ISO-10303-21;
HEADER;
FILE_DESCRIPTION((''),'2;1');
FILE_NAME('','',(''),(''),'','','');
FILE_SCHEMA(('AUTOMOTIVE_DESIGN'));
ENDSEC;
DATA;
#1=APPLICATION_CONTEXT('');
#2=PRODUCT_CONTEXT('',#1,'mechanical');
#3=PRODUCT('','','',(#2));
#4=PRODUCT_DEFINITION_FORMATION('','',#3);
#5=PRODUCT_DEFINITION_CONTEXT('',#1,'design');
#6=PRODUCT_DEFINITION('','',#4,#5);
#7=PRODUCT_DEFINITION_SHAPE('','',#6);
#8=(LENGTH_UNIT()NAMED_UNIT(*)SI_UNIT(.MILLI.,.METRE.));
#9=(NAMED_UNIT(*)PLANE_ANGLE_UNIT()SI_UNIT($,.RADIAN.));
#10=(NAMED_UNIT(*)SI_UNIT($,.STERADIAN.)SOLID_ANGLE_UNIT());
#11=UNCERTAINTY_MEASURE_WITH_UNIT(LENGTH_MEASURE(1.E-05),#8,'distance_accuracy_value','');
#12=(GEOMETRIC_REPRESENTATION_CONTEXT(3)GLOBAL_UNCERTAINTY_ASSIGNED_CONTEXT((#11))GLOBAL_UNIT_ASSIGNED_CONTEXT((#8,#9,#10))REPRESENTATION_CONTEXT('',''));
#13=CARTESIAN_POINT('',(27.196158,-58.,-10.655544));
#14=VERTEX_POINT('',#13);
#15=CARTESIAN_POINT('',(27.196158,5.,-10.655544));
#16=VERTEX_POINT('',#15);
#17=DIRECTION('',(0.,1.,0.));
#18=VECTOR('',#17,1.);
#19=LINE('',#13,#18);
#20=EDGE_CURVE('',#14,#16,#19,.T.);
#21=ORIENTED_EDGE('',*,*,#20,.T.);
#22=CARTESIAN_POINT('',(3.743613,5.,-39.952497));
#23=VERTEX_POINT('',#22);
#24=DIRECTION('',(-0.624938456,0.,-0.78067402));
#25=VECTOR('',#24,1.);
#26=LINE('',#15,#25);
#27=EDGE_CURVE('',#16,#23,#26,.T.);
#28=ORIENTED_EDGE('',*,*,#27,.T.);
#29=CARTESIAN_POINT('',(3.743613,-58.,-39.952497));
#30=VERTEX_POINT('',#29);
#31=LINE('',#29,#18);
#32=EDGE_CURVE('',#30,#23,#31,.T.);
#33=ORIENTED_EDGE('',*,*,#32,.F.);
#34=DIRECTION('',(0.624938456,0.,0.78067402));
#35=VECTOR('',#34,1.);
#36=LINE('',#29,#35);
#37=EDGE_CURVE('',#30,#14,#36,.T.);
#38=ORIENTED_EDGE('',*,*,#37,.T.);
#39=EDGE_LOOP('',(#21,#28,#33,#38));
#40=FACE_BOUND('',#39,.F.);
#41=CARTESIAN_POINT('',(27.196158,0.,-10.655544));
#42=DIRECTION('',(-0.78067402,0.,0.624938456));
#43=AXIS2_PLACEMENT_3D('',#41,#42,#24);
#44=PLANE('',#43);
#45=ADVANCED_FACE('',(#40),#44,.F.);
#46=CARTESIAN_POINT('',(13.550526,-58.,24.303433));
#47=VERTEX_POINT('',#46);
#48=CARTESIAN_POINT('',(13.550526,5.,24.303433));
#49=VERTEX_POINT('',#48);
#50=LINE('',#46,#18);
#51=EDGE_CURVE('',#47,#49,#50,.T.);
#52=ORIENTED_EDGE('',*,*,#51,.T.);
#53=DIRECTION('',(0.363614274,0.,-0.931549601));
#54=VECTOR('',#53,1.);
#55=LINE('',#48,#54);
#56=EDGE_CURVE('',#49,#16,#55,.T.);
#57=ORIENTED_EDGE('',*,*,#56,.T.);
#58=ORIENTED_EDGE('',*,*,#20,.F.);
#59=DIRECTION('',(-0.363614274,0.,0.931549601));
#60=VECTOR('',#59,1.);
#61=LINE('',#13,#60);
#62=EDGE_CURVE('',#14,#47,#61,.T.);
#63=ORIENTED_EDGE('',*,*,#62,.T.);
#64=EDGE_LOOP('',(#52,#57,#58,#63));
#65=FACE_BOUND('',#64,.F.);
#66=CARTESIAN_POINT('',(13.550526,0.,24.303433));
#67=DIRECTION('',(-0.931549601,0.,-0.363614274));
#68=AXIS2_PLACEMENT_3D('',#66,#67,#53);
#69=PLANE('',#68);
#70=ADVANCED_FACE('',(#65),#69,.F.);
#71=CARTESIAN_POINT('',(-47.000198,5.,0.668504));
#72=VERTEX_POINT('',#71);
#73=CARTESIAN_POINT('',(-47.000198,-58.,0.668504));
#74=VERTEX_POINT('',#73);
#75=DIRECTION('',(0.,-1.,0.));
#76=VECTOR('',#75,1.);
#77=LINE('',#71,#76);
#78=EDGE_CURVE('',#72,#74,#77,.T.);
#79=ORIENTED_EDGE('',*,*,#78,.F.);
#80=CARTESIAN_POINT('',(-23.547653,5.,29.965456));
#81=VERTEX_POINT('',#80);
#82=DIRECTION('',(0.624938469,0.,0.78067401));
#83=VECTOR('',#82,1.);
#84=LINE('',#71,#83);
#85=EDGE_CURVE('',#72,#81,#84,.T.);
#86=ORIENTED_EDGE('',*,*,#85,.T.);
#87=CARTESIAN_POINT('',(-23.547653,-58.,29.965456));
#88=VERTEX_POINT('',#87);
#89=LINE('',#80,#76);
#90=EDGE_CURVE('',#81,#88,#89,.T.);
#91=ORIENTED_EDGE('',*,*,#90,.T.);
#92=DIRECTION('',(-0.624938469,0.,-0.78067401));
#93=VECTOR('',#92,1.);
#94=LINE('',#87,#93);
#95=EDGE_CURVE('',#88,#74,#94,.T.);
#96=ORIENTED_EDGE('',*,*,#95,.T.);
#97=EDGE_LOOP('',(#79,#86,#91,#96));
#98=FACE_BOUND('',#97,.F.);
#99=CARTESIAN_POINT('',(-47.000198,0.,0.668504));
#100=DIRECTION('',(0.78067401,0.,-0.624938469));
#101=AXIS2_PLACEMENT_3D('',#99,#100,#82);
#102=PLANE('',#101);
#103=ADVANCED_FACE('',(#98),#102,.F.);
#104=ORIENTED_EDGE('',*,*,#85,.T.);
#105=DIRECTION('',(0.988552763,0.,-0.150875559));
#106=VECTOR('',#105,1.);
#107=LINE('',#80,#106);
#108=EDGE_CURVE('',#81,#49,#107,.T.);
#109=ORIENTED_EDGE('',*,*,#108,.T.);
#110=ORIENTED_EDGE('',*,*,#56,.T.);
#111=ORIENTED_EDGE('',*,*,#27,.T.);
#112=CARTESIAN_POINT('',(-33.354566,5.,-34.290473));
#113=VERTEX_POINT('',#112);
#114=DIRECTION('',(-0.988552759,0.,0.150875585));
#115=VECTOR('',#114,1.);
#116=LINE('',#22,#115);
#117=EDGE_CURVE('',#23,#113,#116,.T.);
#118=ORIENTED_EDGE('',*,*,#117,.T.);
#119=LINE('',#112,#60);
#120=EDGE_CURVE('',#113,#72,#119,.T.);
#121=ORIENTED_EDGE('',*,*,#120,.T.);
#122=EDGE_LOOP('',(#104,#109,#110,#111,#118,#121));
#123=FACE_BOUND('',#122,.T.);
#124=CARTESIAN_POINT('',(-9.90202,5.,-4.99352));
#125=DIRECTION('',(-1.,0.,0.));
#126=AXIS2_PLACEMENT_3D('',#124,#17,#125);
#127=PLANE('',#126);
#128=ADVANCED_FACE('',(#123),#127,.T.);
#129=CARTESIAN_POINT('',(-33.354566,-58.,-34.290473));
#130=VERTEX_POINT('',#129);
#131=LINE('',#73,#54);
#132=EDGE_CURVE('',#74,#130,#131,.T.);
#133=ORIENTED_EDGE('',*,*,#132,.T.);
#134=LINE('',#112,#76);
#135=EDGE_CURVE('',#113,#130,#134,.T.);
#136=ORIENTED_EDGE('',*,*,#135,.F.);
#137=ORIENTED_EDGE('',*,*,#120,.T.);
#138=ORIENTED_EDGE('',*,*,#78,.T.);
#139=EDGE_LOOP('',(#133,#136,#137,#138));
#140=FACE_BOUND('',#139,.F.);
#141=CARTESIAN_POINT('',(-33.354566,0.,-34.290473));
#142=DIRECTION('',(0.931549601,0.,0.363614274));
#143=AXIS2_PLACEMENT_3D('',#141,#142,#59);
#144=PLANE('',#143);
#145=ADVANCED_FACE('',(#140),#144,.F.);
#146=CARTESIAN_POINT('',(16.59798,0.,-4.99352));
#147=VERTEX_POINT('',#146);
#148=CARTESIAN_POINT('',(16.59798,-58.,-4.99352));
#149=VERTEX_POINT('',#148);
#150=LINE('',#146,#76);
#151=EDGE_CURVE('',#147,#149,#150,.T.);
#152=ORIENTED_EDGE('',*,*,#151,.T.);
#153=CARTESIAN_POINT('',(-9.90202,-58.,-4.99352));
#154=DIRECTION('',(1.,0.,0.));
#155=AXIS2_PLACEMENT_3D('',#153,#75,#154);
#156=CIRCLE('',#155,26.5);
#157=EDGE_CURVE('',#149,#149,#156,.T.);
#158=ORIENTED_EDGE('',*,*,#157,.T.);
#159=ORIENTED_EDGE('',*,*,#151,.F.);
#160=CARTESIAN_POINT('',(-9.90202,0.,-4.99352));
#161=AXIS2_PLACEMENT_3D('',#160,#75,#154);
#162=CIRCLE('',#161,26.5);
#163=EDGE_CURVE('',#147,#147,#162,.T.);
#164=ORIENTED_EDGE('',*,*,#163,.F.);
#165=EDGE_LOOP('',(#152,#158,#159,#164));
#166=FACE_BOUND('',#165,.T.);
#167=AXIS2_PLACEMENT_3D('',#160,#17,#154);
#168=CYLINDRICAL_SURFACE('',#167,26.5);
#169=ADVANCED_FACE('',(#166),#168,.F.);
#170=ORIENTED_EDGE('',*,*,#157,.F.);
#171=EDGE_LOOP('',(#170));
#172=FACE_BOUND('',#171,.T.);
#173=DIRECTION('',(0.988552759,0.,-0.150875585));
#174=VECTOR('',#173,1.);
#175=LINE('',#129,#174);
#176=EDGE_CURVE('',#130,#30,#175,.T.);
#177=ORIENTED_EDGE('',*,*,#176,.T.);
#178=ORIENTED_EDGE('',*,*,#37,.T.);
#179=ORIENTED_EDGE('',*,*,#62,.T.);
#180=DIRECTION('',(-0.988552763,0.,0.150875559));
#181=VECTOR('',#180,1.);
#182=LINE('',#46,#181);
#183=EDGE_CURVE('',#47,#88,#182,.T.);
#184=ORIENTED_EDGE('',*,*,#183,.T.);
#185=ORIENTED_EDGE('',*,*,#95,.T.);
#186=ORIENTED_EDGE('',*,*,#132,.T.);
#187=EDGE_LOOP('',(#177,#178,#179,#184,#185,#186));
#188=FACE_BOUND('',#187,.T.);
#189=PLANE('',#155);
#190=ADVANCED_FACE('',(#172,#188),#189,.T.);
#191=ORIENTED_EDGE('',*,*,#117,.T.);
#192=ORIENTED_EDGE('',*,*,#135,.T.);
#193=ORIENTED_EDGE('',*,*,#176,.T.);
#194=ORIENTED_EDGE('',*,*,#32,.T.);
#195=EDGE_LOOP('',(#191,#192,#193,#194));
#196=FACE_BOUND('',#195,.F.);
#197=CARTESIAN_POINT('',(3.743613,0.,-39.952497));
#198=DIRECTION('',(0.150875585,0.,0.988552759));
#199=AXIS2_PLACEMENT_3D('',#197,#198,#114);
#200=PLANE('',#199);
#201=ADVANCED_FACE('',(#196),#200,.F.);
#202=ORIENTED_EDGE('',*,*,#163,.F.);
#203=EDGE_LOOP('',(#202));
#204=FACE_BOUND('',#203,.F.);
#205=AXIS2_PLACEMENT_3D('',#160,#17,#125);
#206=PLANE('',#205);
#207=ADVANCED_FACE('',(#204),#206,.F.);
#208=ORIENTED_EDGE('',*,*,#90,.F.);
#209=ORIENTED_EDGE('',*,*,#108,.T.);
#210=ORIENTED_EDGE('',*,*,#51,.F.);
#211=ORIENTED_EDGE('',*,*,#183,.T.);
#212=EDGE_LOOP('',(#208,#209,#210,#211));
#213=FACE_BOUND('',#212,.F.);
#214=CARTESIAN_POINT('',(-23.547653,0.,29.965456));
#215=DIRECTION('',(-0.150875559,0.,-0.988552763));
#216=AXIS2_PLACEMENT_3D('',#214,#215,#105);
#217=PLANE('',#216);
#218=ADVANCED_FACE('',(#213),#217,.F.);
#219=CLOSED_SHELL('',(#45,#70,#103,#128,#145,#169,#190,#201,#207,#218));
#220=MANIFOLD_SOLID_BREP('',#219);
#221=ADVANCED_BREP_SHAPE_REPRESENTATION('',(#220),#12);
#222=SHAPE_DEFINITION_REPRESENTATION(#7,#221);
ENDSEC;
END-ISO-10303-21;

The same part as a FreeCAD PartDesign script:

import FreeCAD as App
import Part
import Sketcher
from FreeCAD import Vector
Q = App.Units.Quantity

doc = App.newDocument("Part")
params = doc.addObject("Spreadsheet::Sheet", "Params")
for row, (alias, value) in enumerate([
    ("sketch1_diameter", "53 mm"),
    ("pad1_length", "58 mm"),
    ("pad2_length", "5 mm"),
], start=1):
    params.set(f"A{row}", alias)
    params.set(f"B{row}", "=" + value)
    params.setAlias(f"B{row}", alias)

body = doc.addObject("PartDesign::Body", "Body")

# Sketch on XZ plane
sketch1 = body.newObject("Sketcher::SketchObject", "Sketch")
sketch1.AttachmentSupport = (doc.getObject("XZ_Plane"), [""])
sketch1.MapMode = "FlatFace"
sketch1.addGeometry([
    Part.LineSegment(Vector(3.743613, -39.952497, 0), Vector(27.196158, -10.655544, 0)),  # 0
    Part.LineSegment(Vector(27.196158, -10.655544, 0), Vector(13.550526, 24.303433, 0)),  # 1
    Part.LineSegment(Vector(13.550526, 24.303433, 0), Vector(-23.547653, 29.965456, 0)),  # 2
    Part.LineSegment(Vector(-23.547653, 29.965456, 0), Vector(-47.000198, 0.668504, 0)),  # 3
    Part.LineSegment(Vector(-47.000198, 0.668504, 0), Vector(-33.354566, -34.290473, 0)),  # 4
    Part.LineSegment(Vector(-33.354566, -34.290473, 0), Vector(3.743613, -39.952497, 0)),  # 5
    Part.Circle(Vector(-9.90202, -4.99352, 0), Vector(0, 0, 1), 26.5),  # 6
], False)
sketch1.addConstraint([
    Sketcher.Constraint("Coincident", 0, 2, 1, 1),
    Sketcher.Constraint("Coincident", 1, 2, 2, 1),
    Sketcher.Constraint("Coincident", 2, 2, 3, 1),
    Sketcher.Constraint("Coincident", 3, 2, 4, 1),
    Sketcher.Constraint("Coincident", 4, 2, 5, 1),
    Sketcher.Constraint("Coincident", 5, 2, 0, 1),
    Sketcher.Constraint("Parallel", 0, 3),
    Sketcher.Constraint("Parallel", 1, 4),
    Sketcher.Constraint("Parallel", 2, 5),
    Sketcher.Constraint("Equal", 0, 1),
    Sketcher.Constraint("Equal", 1, 2),
    Sketcher.Constraint("Equal", 2, 3),
    Sketcher.Constraint("Diameter", 6, Q("53 mm")),
    Sketcher.Constraint("DistanceY", 0, 2, 2, 2, Q("40.621 mm")),
    Sketcher.Constraint("Distance", 2, Q("37.527768 mm")),
    Sketcher.Constraint("DistanceX", 6, 3, -1, 1, Q("9.90202 mm")),
    Sketcher.Constraint("DistanceY", 6, 3, -1, 1, Q("4.99352 mm")),
    Sketcher.Constraint("DistanceX", -1, 1, 0, 2, Q("27.196158 mm")),
    Sketcher.Constraint("DistanceX", 2, 2, 1, 2, Q("37.098179 mm")),
    Sketcher.Constraint("DistanceY", 3, 2, 1, 2, Q("23.634929 mm")),
    Sketcher.Constraint("DistanceY", 0, 2, -1, 1, Q("10.655544 mm")),
])
sketch1.setExpression("Constraints[12]", "Params.sketch1_diameter")
pad1 = body.newObject("PartDesign::Pad", "Pad")
pad1.Profile = sketch1
pad1.setExpression("Length", "Params.pad1_length")

# Sketch on XZ plane
sketch2 = body.newObject("Sketcher::SketchObject", "Sketch001")
sketch2.AttachmentSupport = (doc.getObject("XZ_Plane"), [""])
sketch2.MapMode = "FlatFace"
sketch2.addGeometry([
    Part.LineSegment(Vector(-23.547653, 29.965456, 0), Vector(13.550526, 24.303433, 0)),  # 0
    Part.LineSegment(Vector(13.550526, 24.303433, 0), Vector(27.196158, -10.655544, 0)),  # 1
    Part.LineSegment(Vector(27.196158, -10.655544, 0), Vector(3.743613, -39.952497, 0)),  # 2
    Part.LineSegment(Vector(3.743613, -39.952497, 0), Vector(-33.354566, -34.290473, 0)),  # 3
    Part.LineSegment(Vector(-33.354566, -34.290473, 0), Vector(-47.000198, 0.668504, 0)),  # 4
    Part.LineSegment(Vector(-47.000198, 0.668504, 0), Vector(-23.547653, 29.965456, 0)),  # 5
], False)
sketch2.addConstraint([
    Sketcher.Constraint("Coincident", 0, 2, 1, 1),
    Sketcher.Constraint("Coincident", 1, 2, 2, 1),
    Sketcher.Constraint("Coincident", 2, 2, 3, 1),
    Sketcher.Constraint("Coincident", 3, 2, 4, 1),
    Sketcher.Constraint("Coincident", 4, 2, 5, 1),
    Sketcher.Constraint("Coincident", 5, 2, 0, 1),
    Sketcher.Constraint("Parallel", 0, 3),
    Sketcher.Constraint("Parallel", 1, 4),
    Sketcher.Constraint("Parallel", 2, 5),
    Sketcher.Constraint("Equal", 0, 1),
    Sketcher.Constraint("Equal", 1, 2),
    Sketcher.Constraint("Equal", 2, 3),
    Sketcher.Constraint("DistanceY", 2, 2, 4, 2, Q("40.621001 mm")),
    Sketcher.Constraint("Distance", 0, Q("37.527768 mm")),
    Sketcher.Constraint("DistanceX", -1, 1, 1, 2, Q("27.196158 mm")),
    Sketcher.Constraint("DistanceY", 2, 2, 0, 2, Q("64.25593 mm")),
    Sketcher.Constraint("DistanceX", 3, 2, 2, 2, Q("37.098179 mm")),
    Sketcher.Constraint("DistanceY", -1, 1, 0, 2, Q("24.303433 mm")),
])
pad2 = body.newObject("PartDesign::Pad", "Pad001")
pad2.Profile = sketch2
pad2.setExpression("Length", "Params.pad2_length")
pad2.Reversed = True

doc.recompute()
